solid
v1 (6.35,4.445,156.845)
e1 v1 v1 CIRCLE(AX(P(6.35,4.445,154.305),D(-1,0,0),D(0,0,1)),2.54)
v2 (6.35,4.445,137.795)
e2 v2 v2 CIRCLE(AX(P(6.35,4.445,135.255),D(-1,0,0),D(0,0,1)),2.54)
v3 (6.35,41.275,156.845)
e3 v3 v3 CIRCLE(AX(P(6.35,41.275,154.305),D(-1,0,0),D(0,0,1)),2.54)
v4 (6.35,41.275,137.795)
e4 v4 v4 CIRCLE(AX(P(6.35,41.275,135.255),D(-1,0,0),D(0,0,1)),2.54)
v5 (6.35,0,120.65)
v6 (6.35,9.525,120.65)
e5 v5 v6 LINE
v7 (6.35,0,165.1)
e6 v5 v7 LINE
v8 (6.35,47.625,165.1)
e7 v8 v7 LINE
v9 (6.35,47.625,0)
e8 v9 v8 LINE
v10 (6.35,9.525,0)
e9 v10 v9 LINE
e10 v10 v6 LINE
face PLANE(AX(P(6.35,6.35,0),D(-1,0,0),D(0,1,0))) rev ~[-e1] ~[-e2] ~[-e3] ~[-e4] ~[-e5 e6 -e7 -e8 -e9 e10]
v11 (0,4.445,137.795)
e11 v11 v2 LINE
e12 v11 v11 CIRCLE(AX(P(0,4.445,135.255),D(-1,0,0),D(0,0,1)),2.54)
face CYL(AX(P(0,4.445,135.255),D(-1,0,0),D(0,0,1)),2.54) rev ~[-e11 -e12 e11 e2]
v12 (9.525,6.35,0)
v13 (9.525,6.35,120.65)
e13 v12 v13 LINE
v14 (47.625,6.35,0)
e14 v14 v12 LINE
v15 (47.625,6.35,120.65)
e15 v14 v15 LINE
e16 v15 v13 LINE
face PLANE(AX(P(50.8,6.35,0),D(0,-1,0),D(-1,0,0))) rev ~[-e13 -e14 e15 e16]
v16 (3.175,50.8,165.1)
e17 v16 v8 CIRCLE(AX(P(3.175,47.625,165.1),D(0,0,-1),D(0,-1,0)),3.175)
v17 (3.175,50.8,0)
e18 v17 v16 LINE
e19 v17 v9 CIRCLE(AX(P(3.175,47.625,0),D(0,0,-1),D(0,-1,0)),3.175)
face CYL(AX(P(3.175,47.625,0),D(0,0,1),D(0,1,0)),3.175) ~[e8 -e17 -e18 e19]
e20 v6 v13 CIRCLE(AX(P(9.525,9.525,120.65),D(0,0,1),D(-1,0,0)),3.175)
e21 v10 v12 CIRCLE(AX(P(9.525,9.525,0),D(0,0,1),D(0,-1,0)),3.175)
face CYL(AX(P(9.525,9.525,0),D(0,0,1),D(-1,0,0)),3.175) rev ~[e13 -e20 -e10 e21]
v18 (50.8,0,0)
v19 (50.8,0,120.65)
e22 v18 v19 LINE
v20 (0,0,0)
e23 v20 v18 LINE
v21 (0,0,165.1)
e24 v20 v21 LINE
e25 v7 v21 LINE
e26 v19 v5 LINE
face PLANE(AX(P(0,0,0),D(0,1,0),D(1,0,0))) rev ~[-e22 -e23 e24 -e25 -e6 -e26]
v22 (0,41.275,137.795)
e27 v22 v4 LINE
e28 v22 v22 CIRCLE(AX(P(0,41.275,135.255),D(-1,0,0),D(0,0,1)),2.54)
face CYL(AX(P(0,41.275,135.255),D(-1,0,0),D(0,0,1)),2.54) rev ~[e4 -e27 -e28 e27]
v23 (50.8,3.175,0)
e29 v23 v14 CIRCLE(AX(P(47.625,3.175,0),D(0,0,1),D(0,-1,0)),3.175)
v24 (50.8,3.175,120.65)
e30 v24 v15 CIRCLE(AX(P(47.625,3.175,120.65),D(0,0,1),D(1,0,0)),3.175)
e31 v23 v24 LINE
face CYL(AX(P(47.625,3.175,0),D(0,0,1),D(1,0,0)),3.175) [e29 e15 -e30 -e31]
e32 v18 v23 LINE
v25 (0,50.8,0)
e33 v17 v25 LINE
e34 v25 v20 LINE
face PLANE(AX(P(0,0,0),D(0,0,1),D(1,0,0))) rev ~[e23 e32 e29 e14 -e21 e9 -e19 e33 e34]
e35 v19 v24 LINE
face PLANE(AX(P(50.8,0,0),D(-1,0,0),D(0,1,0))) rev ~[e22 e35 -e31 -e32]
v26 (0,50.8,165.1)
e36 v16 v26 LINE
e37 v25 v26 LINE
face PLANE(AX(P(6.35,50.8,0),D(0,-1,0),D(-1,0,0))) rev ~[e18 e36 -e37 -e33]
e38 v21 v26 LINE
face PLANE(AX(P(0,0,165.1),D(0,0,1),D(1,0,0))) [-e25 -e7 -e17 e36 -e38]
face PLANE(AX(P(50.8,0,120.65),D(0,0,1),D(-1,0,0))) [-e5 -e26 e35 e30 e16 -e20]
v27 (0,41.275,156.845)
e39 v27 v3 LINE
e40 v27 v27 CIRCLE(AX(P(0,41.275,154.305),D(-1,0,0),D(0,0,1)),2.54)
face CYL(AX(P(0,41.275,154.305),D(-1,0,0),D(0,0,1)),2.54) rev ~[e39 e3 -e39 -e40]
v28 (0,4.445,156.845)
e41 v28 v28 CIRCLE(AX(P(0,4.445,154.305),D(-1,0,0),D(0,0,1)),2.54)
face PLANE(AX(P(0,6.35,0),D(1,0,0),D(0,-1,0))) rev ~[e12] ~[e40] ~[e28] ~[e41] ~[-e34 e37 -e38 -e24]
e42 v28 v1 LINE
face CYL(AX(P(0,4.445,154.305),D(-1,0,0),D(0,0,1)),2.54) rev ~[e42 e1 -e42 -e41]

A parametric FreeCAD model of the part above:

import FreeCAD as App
import Part
import Sketcher
from FreeCAD import Vector
Q = App.Units.Quantity


def edges_at(feature, points):
    """Names of the edges that pass closest to the given points."""
    edges = feature.Shape.Edges
    near = lambda p: min(range(len(edges)), key=lambda i: edges[i].distToShape(Part.Vertex(*p))[0])
    return sorted({f"Edge{near(p) + 1}" for p in points})

doc = App.newDocument("Part")
params = doc.addObject("Spreadsheet::Sheet", "Params")
for row, (alias, value) in enumerate([
    ("sketch1_width", "2 in"),
    ("sketch1_width2", "0.25 in"),
    ("pad1_length", "6.5 in"),
    ("fillet_radius", "0.125 in"),
    ("sketch2_width", "1.75 in"),
    ("pocket1_length", "6.5 in"),
    ("sketch3_diameter", "0.2 in"),
    ("pocket2_length", "6.5 in"),
], start=1):
    params.set(f"A{row}", alias)
    params.set(f"B{row}", "=" + value)
    params.setAlias(f"B{row}", alias)

body = doc.addObject("PartDesign::Body", "Body")

# Sketch on XY plane
sketch1 = doc.addObject("Sketcher::SketchObject", "Sketch")
body.addObject(sketch1)
sketch1.AttachmentSupport = (doc.XY_Plane, [""])
sketch1.MapMode = "FlatFace"
sketch1.addGeometry(Part.LineSegment(Vector(0, 0, 0), Vector(51, 0, 0)), False)
sketch1.addGeometry(Part.LineSegment(Vector(51, 0, 0), Vector(51, 6, 0)), False)
sketch1.addGeometry(Part.LineSegment(Vector(51, 6, 0), Vector(6, 6, 0)), False)
sketch1.addGeometry(Part.LineSegment(Vector(6, 6, 0), Vector(6, 51, 0)), False)
sketch1.addGeometry(Part.LineSegment(Vector(6, 51, 0), Vector(0, 51, 0)), False)
sketch1.addGeometry(Part.LineSegment(Vector(0, 51, 0), Vector(0, 0, 0)), False)
sketch1.addConstraint(Sketcher.Constraint("Coincident", 0, 2, 1, 1))
sketch1.addConstraint(Sketcher.Constraint("Coincident", 1, 2, 2, 1))
sketch1.addConstraint(Sketcher.Constraint("Coincident", 2, 2, 3, 1))
sketch1.addConstraint(Sketcher.Constraint("Coincident", 3, 2, 4, 1))
sketch1.addConstraint(Sketcher.Constraint("Coincident", 4, 2, 5, 1))
sketch1.addConstraint(Sketcher.Constraint("Coincident", 5, 2, 0, 1))
sketch1.addConstraint(Sketcher.Constraint("Horizontal", 0))
sketch1.addConstraint(Sketcher.Constraint("Vertical", 1))
sketch1.addConstraint(Sketcher.Constraint("Horizontal", 2))
sketch1.addConstraint(Sketcher.Constraint("Vertical", 3))
sketch1.addConstraint(Sketcher.Constraint("Horizontal", 4))
sketch1.addConstraint(Sketcher.Constraint("Vertical", 5))
sketch1.addConstraint(Sketcher.Constraint("Coincident", 5, 2, -1, 1))
sketch1.addConstraint(Sketcher.Constraint("Equal", 4, 1))
sketch1.addConstraint(Sketcher.Constraint("Equal", 2, 3))
sketch1.addConstraint(Sketcher.Constraint("DistanceX", 0, 1, 0, 2, Q("2 in")))
sketch1.addConstraint(Sketcher.Constraint("DistanceX", 4, 2, 4, 1, Q("0.25 in")))
sketch1.setExpression("Constraints[15]", "Params.sketch1_width")
sketch1.setExpression("Constraints[16]", "Params.sketch1_width2")
pad1 = doc.addObject("PartDesign::Pad", "Pad")
body.addObject(pad1)
pad1.Profile = sketch1
pad1.setExpression("Length", "Params.pad1_length")
doc.recompute()

fillet = doc.addObject("PartDesign::Fillet", "Fillet")
body.addObject(fillet)
fillet.Base = (pad1, edges_at(pad1, [(6.35, 50.8, 82.55), (6.35, 6.35, 82.55), (50.8, 6.35, 82.55)]))
fillet.setExpression("Radius", "Params.fillet_radius")

# Sketch on XZ plane
sketch2 = doc.addObject("Sketcher::SketchObject", "Sketch001")
body.addObject(sketch2)
sketch2.AttachmentSupport = (doc.XZ_Plane, [""])
sketch2.MapMode = "FlatFace"
sketch2.addGeometry(Part.LineSegment(Vector(51, 165, 0), Vector(6, 165, 0)), False)
sketch2.addGeometry(Part.LineSegment(Vector(6, 165, 0), Vector(6, 121, 0)), False)
sketch2.addGeometry(Part.LineSegment(Vector(6, 121, 0), Vector(51, 121, 0)), False)
sketch2.addGeometry(Part.LineSegment(Vector(51, 121, 0), Vector(51, 165, 0)), False)
sketch2.addConstraint(Sketcher.Constraint("Coincident", 0, 2, 1, 1))
sketch2.addConstraint(Sketcher.Constraint("Coincident", 1, 2, 2, 1))
sketch2.addConstraint(Sketcher.Constraint("Coincident", 2, 2, 3, 1))
sketch2.addConstraint(Sketcher.Constraint("Coincident", 3, 2, 0, 1))
sketch2.addConstraint(Sketcher.Constraint("Horizontal", 0))
sketch2.addConstraint(Sketcher.Constraint("Vertical", 1))
sketch2.addConstraint(Sketcher.Constraint("Horizontal", 2))
sketch2.addConstraint(Sketcher.Constraint("Vertical", 3))
sketch2.addConstraint(Sketcher.Constraint("Equal", 2, 1))
sketch2.addConstraint(Sketcher.Constraint("DistanceX", 0, 2, 0, 1, Q("1.75 in")))
sketch2.addConstraint(Sketcher.Constraint("DistanceX", -1, 1, 2, 2, Q("2 in")))
sketch2.addConstraint(Sketcher.Constraint("DistanceY", -1, 1, 0, 2, Q("6.5 in")))
sketch2.setExpression("Constraints[9]", "Params.sketch2_width")
pocket1 = doc.addObject("PartDesign::Pocket", "Pocket")
body.addObject(pocket1)
pocket1.Profile = sketch2
pocket1.setExpression("Length", "Params.pocket1_length")

# Sketch on YZ plane
sketch3 = doc.addObject("Sketcher::SketchObject", "Sketch002")
body.addObject(sketch3)
sketch3.AttachmentSupport = (doc.YZ_Plane, [""])
sketch3.MapMode = "FlatFace"
sketch3.addGeometry(Part.Circle(Vector(4.4, 135.3, 0), Vector(0, 0, 1), 2.5), False)
sketch3.addGeometry(Part.Circle(Vector(4.4, 154.3, 0), Vector(0, 0, 1), 2.5), False)
sketch3.addGeometry(Part.Circle(Vector(41.3, 154.3, 0), Vector(0, 0, 1), 2.5), False)
sketch3.addGeometry(Part.Circle(Vector(41.3, 135.3, 0), Vector(0, 0, 1), 2.5), False)
sketch3.addConstraint(Sketcher.Constraint("Equal", 0, 1))
sketch3.addConstraint(Sketcher.Constraint("Equal", 1, 2))
sketch3.addConstraint(Sketcher.Constraint("Equal", 2, 3))
sketch3.addConstraint(Sketcher.Constraint("Horizontal", 1, 3, 2, 3))
sketch3.addConstraint(Sketcher.Constraint("Horizontal", 0, 3, 3, 3))
sketch3.addConstraint(Sketcher.Constraint("Vertical", 0, 3, 1, 3))
sketch3.addConstraint(Sketcher.Constraint("Vertical", 2, 3, 3, 3))
sketch3.addConstraint(Sketcher.Constraint("Diameter", 0, Q("0.2 in")))
sketch3.addConstraint(Sketcher.Constraint("DistanceY", 0, 3, 1, 3, Q("0.75 in")))
sketch3.addConstraint(Sketcher.Constraint("DistanceX", 1, 3, 2, 3, Q("1.45 in")))
sketch3.addConstraint(Sketcher.Constraint("DistanceX", -1, 1, 0, 3, Q("0.175 in")))
sketch3.addConstraint(Sketcher.Constraint("DistanceY", -1, 1, 0, 3, Q("5.325 in")))
sketch3.setExpression("Constraints[7]", "Params.sketch3_diameter")
pocket2 = doc.addObject("PartDesign::Pocket", "Pocket001")
body.addObject(pocket2)
pocket2.Profile = sketch3
pocket2.setExpression("Length", "Params.pocket2_length")
pocket2.Reversed = True

doc.recompute()
